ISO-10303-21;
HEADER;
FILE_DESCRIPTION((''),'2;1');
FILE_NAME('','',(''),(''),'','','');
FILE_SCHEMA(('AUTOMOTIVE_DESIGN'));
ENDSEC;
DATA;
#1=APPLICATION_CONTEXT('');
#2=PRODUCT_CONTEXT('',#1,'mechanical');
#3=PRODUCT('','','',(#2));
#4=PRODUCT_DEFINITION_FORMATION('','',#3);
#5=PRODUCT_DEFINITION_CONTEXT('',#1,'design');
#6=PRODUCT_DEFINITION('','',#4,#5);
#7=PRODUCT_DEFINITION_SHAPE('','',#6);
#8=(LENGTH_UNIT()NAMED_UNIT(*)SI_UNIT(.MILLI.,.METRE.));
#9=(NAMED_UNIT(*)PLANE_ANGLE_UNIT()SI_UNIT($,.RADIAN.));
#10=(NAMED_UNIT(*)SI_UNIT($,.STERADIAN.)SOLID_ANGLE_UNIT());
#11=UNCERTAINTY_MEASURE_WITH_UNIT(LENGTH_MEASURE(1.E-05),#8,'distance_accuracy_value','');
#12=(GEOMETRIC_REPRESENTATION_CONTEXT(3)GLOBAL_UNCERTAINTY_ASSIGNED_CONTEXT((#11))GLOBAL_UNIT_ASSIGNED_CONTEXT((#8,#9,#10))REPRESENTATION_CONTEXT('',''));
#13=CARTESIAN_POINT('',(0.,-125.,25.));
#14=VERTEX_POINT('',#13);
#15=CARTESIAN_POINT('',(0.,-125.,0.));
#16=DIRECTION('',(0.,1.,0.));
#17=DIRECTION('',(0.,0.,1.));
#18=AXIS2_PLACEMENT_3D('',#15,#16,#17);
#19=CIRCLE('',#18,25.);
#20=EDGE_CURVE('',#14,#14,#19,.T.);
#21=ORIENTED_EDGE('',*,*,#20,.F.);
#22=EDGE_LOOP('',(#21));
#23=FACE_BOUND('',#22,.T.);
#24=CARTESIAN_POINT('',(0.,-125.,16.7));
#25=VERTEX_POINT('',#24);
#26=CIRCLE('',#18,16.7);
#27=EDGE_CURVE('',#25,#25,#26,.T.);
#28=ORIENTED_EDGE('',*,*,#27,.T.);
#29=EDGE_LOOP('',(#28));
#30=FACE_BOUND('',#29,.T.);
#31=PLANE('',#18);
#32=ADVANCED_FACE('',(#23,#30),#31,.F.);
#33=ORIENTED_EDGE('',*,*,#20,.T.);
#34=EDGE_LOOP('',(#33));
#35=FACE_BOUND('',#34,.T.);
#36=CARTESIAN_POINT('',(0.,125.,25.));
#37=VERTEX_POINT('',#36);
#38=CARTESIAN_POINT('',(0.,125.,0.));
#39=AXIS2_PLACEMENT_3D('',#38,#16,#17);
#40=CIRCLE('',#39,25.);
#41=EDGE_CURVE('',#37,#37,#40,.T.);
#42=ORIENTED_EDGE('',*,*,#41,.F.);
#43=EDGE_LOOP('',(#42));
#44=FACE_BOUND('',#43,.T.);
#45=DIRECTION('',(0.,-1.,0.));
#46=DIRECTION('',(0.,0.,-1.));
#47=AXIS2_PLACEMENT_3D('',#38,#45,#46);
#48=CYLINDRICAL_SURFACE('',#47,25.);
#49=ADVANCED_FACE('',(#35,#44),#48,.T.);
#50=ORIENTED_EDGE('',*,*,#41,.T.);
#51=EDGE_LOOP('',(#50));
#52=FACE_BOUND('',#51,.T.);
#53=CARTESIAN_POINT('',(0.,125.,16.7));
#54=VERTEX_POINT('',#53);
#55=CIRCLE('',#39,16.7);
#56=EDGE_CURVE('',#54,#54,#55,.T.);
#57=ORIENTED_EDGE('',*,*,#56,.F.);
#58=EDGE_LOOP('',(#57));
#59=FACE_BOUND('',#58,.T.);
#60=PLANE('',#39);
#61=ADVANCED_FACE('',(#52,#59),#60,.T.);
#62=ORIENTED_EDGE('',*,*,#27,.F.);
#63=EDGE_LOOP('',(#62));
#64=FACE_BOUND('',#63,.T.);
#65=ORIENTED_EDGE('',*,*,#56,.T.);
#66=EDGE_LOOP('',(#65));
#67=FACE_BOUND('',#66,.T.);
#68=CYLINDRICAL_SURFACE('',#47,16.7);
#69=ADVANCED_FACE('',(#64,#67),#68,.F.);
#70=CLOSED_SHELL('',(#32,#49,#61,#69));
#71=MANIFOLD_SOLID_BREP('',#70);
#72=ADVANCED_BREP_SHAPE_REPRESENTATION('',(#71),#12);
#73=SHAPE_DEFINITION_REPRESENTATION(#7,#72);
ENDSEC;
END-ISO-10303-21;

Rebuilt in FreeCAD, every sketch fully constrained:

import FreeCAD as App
import Part
import Sketcher
from FreeCAD import Vector

doc = App.newDocument("Part")
body = doc.addObject("PartDesign::Body", "Body")

# Sketch on XZ plane
sketch1 = doc.addObject("Sketcher::SketchObject", "Sketch")
body.addObject(sketch1)
sketch1.AttachmentSupport = (doc.XZ_Plane, [""])
sketch1.MapMode = "FlatFace"
sketch1.addGeometry(Part.Circle(Vector(0, 0, 0), Vector(0, 0, 1), 25), False)
sketch1.addGeometry(Part.Circle(Vector(0, 0, 0), Vector(0, 0, 1), 17), False)
sketch1.addConstraint(Sketcher.Constraint("Coincident", 0, 3, -1, 1))
sketch1.addConstraint(Sketcher.Constraint("Coincident", 1, 3, -1, 1))
sketch1.addConstraint(Sketcher.Constraint("Diameter", 0, 50.0))
sketch1.addConstraint(Sketcher.Constraint("Diameter", 1, 33.4))
pad1 = doc.addObject("PartDesign::Pad", "Pad")
body.addObject(pad1)
pad1.Profile = sketch1
pad1.Length = 250
pad1.Midplane = True

doc.recompute()
